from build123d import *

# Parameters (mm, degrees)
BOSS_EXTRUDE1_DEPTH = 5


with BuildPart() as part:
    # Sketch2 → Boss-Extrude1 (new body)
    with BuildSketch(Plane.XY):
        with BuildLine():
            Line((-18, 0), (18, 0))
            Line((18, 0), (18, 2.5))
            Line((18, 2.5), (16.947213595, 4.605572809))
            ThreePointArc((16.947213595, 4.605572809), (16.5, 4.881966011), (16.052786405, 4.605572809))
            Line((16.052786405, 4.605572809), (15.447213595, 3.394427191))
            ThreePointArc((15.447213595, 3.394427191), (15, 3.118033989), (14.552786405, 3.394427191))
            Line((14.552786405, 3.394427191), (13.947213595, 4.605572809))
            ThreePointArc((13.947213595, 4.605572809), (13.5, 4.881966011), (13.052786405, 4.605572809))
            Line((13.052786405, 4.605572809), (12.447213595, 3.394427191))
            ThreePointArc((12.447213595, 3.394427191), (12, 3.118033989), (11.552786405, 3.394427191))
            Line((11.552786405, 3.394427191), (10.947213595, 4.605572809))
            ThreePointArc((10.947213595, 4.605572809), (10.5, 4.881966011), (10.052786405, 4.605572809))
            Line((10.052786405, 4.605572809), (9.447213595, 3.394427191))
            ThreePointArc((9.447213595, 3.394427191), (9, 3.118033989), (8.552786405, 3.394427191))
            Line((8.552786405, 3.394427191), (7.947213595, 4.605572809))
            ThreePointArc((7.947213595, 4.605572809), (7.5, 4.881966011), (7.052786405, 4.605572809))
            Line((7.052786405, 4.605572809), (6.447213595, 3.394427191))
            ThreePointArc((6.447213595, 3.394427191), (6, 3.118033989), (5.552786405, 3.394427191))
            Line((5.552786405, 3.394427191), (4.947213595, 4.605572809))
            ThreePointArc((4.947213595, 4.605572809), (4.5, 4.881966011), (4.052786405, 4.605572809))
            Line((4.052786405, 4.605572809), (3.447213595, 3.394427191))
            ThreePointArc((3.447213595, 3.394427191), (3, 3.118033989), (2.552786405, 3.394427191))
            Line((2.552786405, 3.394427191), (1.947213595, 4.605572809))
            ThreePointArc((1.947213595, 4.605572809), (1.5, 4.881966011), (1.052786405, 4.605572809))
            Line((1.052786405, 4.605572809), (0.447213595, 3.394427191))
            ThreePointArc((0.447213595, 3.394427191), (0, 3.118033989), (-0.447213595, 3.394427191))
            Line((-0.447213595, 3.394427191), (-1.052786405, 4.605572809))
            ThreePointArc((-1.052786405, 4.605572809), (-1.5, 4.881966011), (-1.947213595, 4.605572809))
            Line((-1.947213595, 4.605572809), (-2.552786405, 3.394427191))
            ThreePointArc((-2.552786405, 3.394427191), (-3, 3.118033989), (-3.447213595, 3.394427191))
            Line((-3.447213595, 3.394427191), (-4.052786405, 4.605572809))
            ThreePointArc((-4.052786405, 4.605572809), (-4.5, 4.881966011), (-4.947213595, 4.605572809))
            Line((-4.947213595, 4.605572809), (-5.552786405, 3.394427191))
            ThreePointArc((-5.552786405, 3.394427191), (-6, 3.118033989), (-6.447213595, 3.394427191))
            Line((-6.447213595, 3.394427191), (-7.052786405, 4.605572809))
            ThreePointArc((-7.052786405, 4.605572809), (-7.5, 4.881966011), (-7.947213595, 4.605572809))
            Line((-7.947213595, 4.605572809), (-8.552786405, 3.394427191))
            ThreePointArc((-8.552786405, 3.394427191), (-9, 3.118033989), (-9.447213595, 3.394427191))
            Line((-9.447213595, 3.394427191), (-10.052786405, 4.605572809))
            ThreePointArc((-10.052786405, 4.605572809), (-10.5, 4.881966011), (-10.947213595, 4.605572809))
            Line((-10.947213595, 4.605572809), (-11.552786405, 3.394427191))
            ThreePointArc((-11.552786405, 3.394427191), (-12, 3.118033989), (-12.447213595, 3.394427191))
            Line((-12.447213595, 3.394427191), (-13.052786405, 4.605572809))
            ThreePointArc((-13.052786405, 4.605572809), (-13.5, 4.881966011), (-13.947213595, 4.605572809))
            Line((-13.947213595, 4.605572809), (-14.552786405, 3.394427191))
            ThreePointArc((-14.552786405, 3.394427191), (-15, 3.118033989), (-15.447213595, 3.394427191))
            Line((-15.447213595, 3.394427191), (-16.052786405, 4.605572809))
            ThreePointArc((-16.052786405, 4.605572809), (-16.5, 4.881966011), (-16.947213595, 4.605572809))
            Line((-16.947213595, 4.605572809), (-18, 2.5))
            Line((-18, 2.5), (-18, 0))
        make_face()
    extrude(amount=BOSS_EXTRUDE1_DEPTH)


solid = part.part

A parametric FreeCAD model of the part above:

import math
import FreeCAD as App
import Part
import Sketcher

doc = App.newDocument("Part")
params = doc.addObject("Spreadsheet::Sheet", "Params")
for row, (alias, value) in enumerate([
    ("sketch1_radius", "0.5 mm"),
    ("sketch1_width", "36 mm"),
    ("sketch1_height", "2.5 mm"),
    ("pad1_length", "5 mm"),
], start=1):
    params.set(f"A{row}", alias)
    params.set(f"B{row}", "=" + value)
    params.setAlias(f"B{row}", alias)

body = doc.addObject("PartDesign::Body", "Body")

# Sketch on XY plane
sketch1 = body.newObject("Sketcher::SketchObject", "Sketch")
sketch1.AttachmentSupport = (doc.getObject("XY_Plane"), [""])
sketch1.MapMode = "FlatFace"
sketch1.addGeometry([
    Part.LineSegment(App.Vector(-18, 0, 0), App.Vector(18, 0, 0)),  # 0
    Part.LineSegment(App.Vector(18, 0, 0), App.Vector(18, 2.5, 0)),  # 1
    Part.LineSegment(App.Vector(18, 2.5, 0), App.Vector(16.947214, 4.605573, 0)),  # 2
    Part.ArcOfCircle(Part.Circle(App.Vector(16.5, 4.381966, 0), App.Vector(0, 0, 1), 0.5), math.radians(26.565051), math.radians(153.434949)),  # 3
    Part.LineSegment(App.Vector(16.052786, 4.605573, 0), App.Vector(15.447214, 3.394427, 0)),  # 4
    Part.ArcOfCircle(Part.Circle(App.Vector(15, 3.618034, 0), App.Vector(0, 0, 1), 0.5), math.radians(-153.434949), math.radians(-26.565051)),  # 5
    Part.LineSegment(App.Vector(14.552786, 3.394427, 0), App.Vector(13.947214, 4.605573, 0)),  # 6
    Part.ArcOfCircle(Part.Circle(App.Vector(13.5, 4.381966, 0), App.Vector(0, 0, 1), 0.5), math.radians(26.565051), math.radians(153.434949)),  # 7
    Part.LineSegment(App.Vector(13.052786, 4.605573, 0), App.Vector(12.447214, 3.394427, 0)),  # 8
    Part.ArcOfCircle(Part.Circle(App.Vector(12, 3.618034, 0), App.Vector(0, 0, 1), 0.5), math.radians(-153.434949), math.radians(-26.565051)),  # 9
    Part.LineSegment(App.Vector(11.552786, 3.394427, 0), App.Vector(10.947214, 4.605573, 0)),  # 10
    Part.ArcOfCircle(Part.Circle(App.Vector(10.5, 4.381966, 0), App.Vector(0, 0, 1), 0.5), math.radians(26.565051), math.radians(153.434949)),  # 11
    Part.LineSegment(App.Vector(10.052786, 4.605573, 0), App.Vector(9.447214, 3.394427, 0)),  # 12
    Part.ArcOfCircle(Part.Circle(App.Vector(9, 3.618034, 0), App.Vector(0, 0, 1), 0.5), math.radians(-153.434949), math.radians(-26.565051)),  # 13
    Part.LineSegment(App.Vector(8.552786, 3.394427, 0), App.Vector(7.947214, 4.605573, 0)),  # 14
    Part.ArcOfCircle(Part.Circle(App.Vector(7.5, 4.381966, 0), App.Vector(0, 0, 1), 0.5), math.radians(26.565051), math.radians(153.434949)),  # 15
    Part.LineSegment(App.Vector(7.052786, 4.605573, 0), App.Vector(6.447214, 3.394427, 0)),  # 16
    Part.ArcOfCircle(Part.Circle(App.Vector(6, 3.618034, 0), App.Vector(0, 0, 1), 0.5), math.radians(-153.434949), math.radians(-26.565051)),  # 17
    Part.LineSegment(App.Vector(5.552786, 3.394427, 0), App.Vector(4.947214, 4.605573, 0)),  # 18
    Part.ArcOfCircle(Part.Circle(App.Vector(4.5, 4.381966, 0), App.Vector(0, 0, 1), 0.5), math.radians(26.565051), math.radians(153.434949)),  # 19
    Part.LineSegment(App.Vector(4.052786, 4.605573, 0), App.Vector(3.447214, 3.394427, 0)),  # 20
    Part.ArcOfCircle(Part.Circle(App.Vector(3, 3.618034, 0), App.Vector(0, 0, 1), 0.5), math.radians(-153.434949), math.radians(-26.565051)),  # 21
    Part.LineSegment(App.Vector(2.552786, 3.394427, 0), App.Vector(1.947214, 4.605573, 0)),  # 22
    Part.ArcOfCircle(Part.Circle(App.Vector(1.5, 4.381966, 0), App.Vector(0, 0, 1), 0.5), math.radians(26.565051), math.radians(153.434949)),  # 23
    Part.LineSegment(App.Vector(1.052786, 4.605573, 0), App.Vector(0.447214, 3.394427, 0)),  # 24
    Part.ArcOfCircle(Part.Circle(App.Vector(0, 3.618034, 0), App.Vector(0, 0, 1), 0.5), math.radians(-153.434949), math.radians(-26.565051)),  # 25
    Part.LineSegment(App.Vector(-0.447214, 3.394427, 0), App.Vector(-1.052786, 4.605573, 0)),  # 26
    Part.ArcOfCircle(Part.Circle(App.Vector(-1.5, 4.381966, 0), App.Vector(0, 0, 1), 0.5), math.radians(26.565051), math.radians(153.434949)),  # 27
    Part.LineSegment(App.Vector(-1.947214, 4.605573, 0), App.Vector(-2.552786, 3.394427, 0)),  # 28
    Part.ArcOfCircle(Part.Circle(App.Vector(-3, 3.618034, 0), App.Vector(0, 0, 1), 0.5), math.radians(-153.434949), math.radians(-26.565051)),  # 29
    Part.LineSegment(App.Vector(-3.447214, 3.394427, 0), App.Vector(-4.052786, 4.605573, 0)),  # 30
    Part.ArcOfCircle(Part.Circle(App.Vector(-4.5, 4.381966, 0), App.Vector(0, 0, 1), 0.5), math.radians(26.565051), math.radians(153.434949)),  # 31
    Part.LineSegment(App.Vector(-4.947214, 4.605573, 0), App.Vector(-5.552786, 3.394427, 0)),  # 32
    Part.ArcOfCircle(Part.Circle(App.Vector(-6, 3.618034, 0), App.Vector(0, 0, 1), 0.5), math.radians(-153.434949), math.radians(-26.565051)),  # 33
    Part.LineSegment(App.Vector(-6.447214, 3.394427, 0), App.Vector(-7.052786, 4.605573, 0)),  # 34
    Part.ArcOfCircle(Part.Circle(App.Vector(-7.5, 4.381966, 0), App.Vector(0, 0, 1), 0.5), math.radians(26.565051), math.radians(153.434949)),  # 35
    Part.LineSegment(App.Vector(-7.947214, 4.605573, 0), App.Vector(-8.552786, 3.394427, 0)),  # 36
    Part.ArcOfCircle(Part.Circle(App.Vector(-9, 3.618034, 0), App.Vector(0, 0, 1), 0.5), math.radians(-153.434949), math.radians(-26.565051)),  # 37
    Part.LineSegment(App.Vector(-9.447214, 3.394427, 0), App.Vector(-10.052786, 4.605573, 0)),  # 38
    Part.ArcOfCircle(Part.Circle(App.Vector(-10.5, 4.381966, 0), App.Vector(0, 0, 1), 0.5), math.radians(26.565051), math.radians(153.434949)),  # 39
    Part.LineSegment(App.Vector(-10.947214, 4.605573, 0), App.Vector(-11.552786, 3.394427, 0)),  # 40
    Part.ArcOfCircle(Part.Circle(App.Vector(-12, 3.618034, 0), App.Vector(0, 0, 1), 0.5), math.radians(-153.434949), math.radians(-26.565051)),  # 41
    Part.LineSegment(App.Vector(-12.447214, 3.394427, 0), App.Vector(-13.052786, 4.605573, 0)),  # 42
    Part.ArcOfCircle(Part.Circle(App.Vector(-13.5, 4.381966, 0), App.Vector(0, 0, 1), 0.5), math.radians(26.565051), math.radians(153.434949)),  # 43
    Part.LineSegment(App.Vector(-13.947214, 4.605573, 0), App.Vector(-14.552786, 3.394427, 0)),  # 44
    Part.ArcOfCircle(Part.Circle(App.Vector(-15, 3.618034, 0), App.Vector(0, 0, 1), 0.5), math.radians(-153.434949), math.radians(-26.565051)),  # 45
    Part.LineSegment(App.Vector(-15.447214, 3.394427, 0), App.Vector(-16.052786, 4.605573, 0)),  # 46
    Part.ArcOfCircle(Part.Circle(App.Vector(-16.5, 4.381966, 0), App.Vector(0, 0, 1), 0.5), math.radians(26.565051), math.radians(153.434949)),  # 47
    Part.LineSegment(App.Vector(-16.947214, 4.605573, 0), App.Vector(-18, 2.5, 0)),  # 48
    Part.LineSegment(App.Vector(-18, 2.5, 0), App.Vector(-18, 0, 0)),  # 49
], False)
sketch1.addConstraint([
    Sketcher.Constraint("Coincident", 0, 2, 1, 1),
    Sketcher.Constraint("Coincident", 1, 2, 2, 1),
    Sketcher.Constraint("Tangent", 2, 2, 3, 1),
    Sketcher.Constraint("Tangent", 3, 2, 4, 1),
    Sketcher.Constraint("Tangent", 4, 2, 5, 2),
    Sketcher.Constraint("Tangent", 5, 1, 6, 1),
    Sketcher.Constraint("Tangent", 6, 2, 7, 1),
    Sketcher.Constraint("Tangent", 7, 2, 8, 1),
    Sketcher.Constraint("Tangent", 8, 2, 9, 2),
    Sketcher.Constraint("Tangent", 9, 1, 10, 1),
    Sketcher.Constraint("Tangent", 10, 2, 11, 1),
    Sketcher.Constraint("Tangent", 11, 2, 12, 1),
    Sketcher.Constraint("Tangent", 12, 2, 13, 2),
    Sketcher.Constraint("Tangent", 13, 1, 14, 1),
    Sketcher.Constraint("Tangent", 14, 2, 15, 1),
    Sketcher.Constraint("Tangent", 15, 2, 16, 1),
    Sketcher.Constraint("Tangent", 16, 2, 17, 2),
    Sketcher.Constraint("Tangent", 17, 1, 18, 1),
    Sketcher.Constraint("Tangent", 18, 2, 19, 1),
    Sketcher.Constraint("Tangent", 19, 2, 20, 1),
    Sketcher.Constraint("Tangent", 20, 2, 21, 2),
    Sketcher.Constraint("Tangent", 21, 1, 22, 1),
    Sketcher.Constraint("Tangent", 22, 2, 23, 1),
    Sketcher.Constraint("Tangent", 23, 2, 24, 1),
    Sketcher.Constraint("Tangent", 24, 2, 25, 2),
    Sketcher.Constraint("Tangent", 25, 1, 26, 1),
    Sketcher.Constraint("Tangent", 26, 2, 27, 1),
    Sketcher.Constraint("Tangent", 27, 2, 28, 1),
    Sketcher.Constraint("Tangent", 28, 2, 29, 2),
    Sketcher.Constraint("Tangent", 29, 1, 30, 1),
    Sketcher.Constraint("Tangent", 30, 2, 31, 1),
    Sketcher.Constraint("Tangent", 31, 2, 32, 1),
    Sketcher.Constraint("Tangent", 32, 2, 33, 2),
    Sketcher.Constraint("Tangent", 33, 1, 34, 1),
    Sketcher.Constraint("Tangent", 34, 2, 35, 1),
    Sketcher.Constraint("Tangent", 35, 2, 36, 1),
    Sketcher.Constraint("Tangent", 36, 2, 37, 2),
    Sketcher.Constraint("Tangent", 37, 1, 38, 1),
    Sketcher.Constraint("Tangent", 38, 2, 39, 1),
    Sketcher.Constraint("Tangent", 39, 2, 40, 1),
    Sketcher.Constraint("Tangent", 40, 2, 41, 2),
    Sketcher.Constraint("Tangent", 41, 1, 42, 1),
    Sketcher.Constraint("Tangent", 42, 2, 43, 1),
    Sketcher.Constraint("Tangent", 43, 2, 44, 1),
    Sketcher.Constraint("Tangent", 44, 2, 45, 2),
    Sketcher.Constraint("Tangent", 45, 1, 46, 1),
    Sketcher.Constraint("Tangent", 46, 2, 47, 1),
    Sketcher.Constraint("Tangent", 47, 2, 48, 1),
    Sketcher.Constraint("Coincident", 48, 2, 49, 1),
    Sketcher.Constraint("Coincident", 49, 2, 0, 1),
    Sketcher.Constraint("Horizontal", 0),
    Sketcher.Constraint("Vertical", 1),
    Sketcher.Constraint("Vertical", 49),
    Sketcher.Constraint("Equal", 3, 5),
    Sketcher.Constraint("Equal", 5, 7),
    Sketcher.Constraint("Equal", 7, 9),
    Sketcher.Constraint("Equal", 9, 11),
    Sketcher.Constraint("Equal", 11, 13),
    Sketcher.Constraint("Equal", 13, 15),
    Sketcher.Constraint("Equal", 15, 17),
    Sketcher.Constraint("Equal", 17, 19),
    Sketcher.Constraint("Equal", 19, 21),
    Sketcher.Constraint("Equal", 21, 23),
    Sketcher.Constraint("Equal", 23, 25),
    Sketcher.Constraint("Equal", 25, 27),
    Sketcher.Constraint("Equal", 27, 29),
    Sketcher.Constraint("Equal", 29, 31),
    Sketcher.Constraint("Equal", 31, 33),
    Sketcher.Constraint("Equal", 33, 35),
    Sketcher.Constraint("Equal", 35, 37),
    Sketcher.Constraint("Equal", 37, 39),
    Sketcher.Constraint("Equal", 39, 41),
    Sketcher.Constraint("Equal", 41, 43),
    Sketcher.Constraint("Equal", 43, 45),
    Sketcher.Constraint("Equal", 45, 47),
    Sketcher.Constraint("Symmetric", 0, 2, 49, 2, -1, 1),
    Sketcher.Constraint("Symmetric", 23, 3, 27, 3, -2),
    Sketcher.Constraint("Symmetric", 21, 3, 29, 3, -2),
    Sketcher.Constraint("Symmetric", 19, 3, 31, 3, -2),
    Sketcher.Constraint("Symmetric", 17, 3, 33, 3, -2),
    Sketcher.Constraint("Symmetric", 15, 3, 35, 3, -2),
    Sketcher.Constraint("Symmetric", 13, 3, 37, 3, -2),
    Sketcher.Constraint("Symmetric", 11, 3, 39, 3, -2),
    Sketcher.Constraint("Symmetric", 9, 3, 41, 3, -2),
    Sketcher.Constraint("Symmetric", 7, 3, 43, 3, -2),
    Sketcher.Constraint("Symmetric", 5, 3, 45, 3, -2),
    Sketcher.Constraint("Symmetric", 3, 3, 47, 3, -2),
    Sketcher.Constraint("PointOnObject", 25, 3, -2),
    Sketcher.Constraint("Parallel", 2, 6),
    Sketcher.Constraint("Parallel", 4, 8),
    Sketcher.Constraint("Parallel", 6, 10),
    Sketcher.Constraint("Parallel", 8, 12),
    Sketcher.Constraint("Parallel", 10, 14),
    Sketcher.Constraint("Parallel", 12, 16),
    Sketcher.Constraint("Parallel", 14, 18),
    Sketcher.Constraint("Parallel", 16, 20),
    Sketcher.Constraint("Parallel", 18, 22),
    Sketcher.Constraint("Parallel", 20, 24),
    Sketcher.Constraint("Parallel", 22, 26),
    Sketcher.Constraint("Parallel", 44, 48),
    Sketcher.Constraint("Horizontal", 3, 3, 7, 3),
    Sketcher.Constraint("Horizontal", 5, 3, 9, 3),
    Sketcher.Constraint("Horizontal", 7, 3, 11, 3),
    Sketcher.Constraint("Horizontal", 9, 3, 13, 3),
    Sketcher.Constraint("Horizontal", 11, 3, 15, 3),
    Sketcher.Constraint("Horizontal", 13, 3, 17, 3),
    Sketcher.Constraint("Horizontal", 15, 3, 19, 3),
    Sketcher.Constraint("Horizontal", 17, 3, 21, 3),
    Sketcher.Constraint("Horizontal", 19, 3, 23, 3),
    Sketcher.Constraint("Horizontal", 21, 3, 25, 3),
    Sketcher.Constraint("Radius", 3, 0.5),
    Sketcher.Constraint("DistanceX", 0, 1, 0, 2, 36.0),
    Sketcher.Constraint("DistanceY", 1, 1, 1, 2, 2.5),
    Sketcher.Constraint("DistanceX", -1, 1, 5, 3, 15.0),
    Sketcher.Constraint("Distance", 2, 2.354102),
])
sketch1.setExpression("Constraints[110]", "Params.sketch1_radius")
sketch1.setExpression("Constraints[111]", "Params.sketch1_width")
sketch1.setExpression("Constraints[112]", "Params.sketch1_height")
pad1 = body.newObject("PartDesign::Pad", "Pad")
pad1.Profile = sketch1
pad1.setExpression("Length", "Params.pad1_length")

doc.recompute()
